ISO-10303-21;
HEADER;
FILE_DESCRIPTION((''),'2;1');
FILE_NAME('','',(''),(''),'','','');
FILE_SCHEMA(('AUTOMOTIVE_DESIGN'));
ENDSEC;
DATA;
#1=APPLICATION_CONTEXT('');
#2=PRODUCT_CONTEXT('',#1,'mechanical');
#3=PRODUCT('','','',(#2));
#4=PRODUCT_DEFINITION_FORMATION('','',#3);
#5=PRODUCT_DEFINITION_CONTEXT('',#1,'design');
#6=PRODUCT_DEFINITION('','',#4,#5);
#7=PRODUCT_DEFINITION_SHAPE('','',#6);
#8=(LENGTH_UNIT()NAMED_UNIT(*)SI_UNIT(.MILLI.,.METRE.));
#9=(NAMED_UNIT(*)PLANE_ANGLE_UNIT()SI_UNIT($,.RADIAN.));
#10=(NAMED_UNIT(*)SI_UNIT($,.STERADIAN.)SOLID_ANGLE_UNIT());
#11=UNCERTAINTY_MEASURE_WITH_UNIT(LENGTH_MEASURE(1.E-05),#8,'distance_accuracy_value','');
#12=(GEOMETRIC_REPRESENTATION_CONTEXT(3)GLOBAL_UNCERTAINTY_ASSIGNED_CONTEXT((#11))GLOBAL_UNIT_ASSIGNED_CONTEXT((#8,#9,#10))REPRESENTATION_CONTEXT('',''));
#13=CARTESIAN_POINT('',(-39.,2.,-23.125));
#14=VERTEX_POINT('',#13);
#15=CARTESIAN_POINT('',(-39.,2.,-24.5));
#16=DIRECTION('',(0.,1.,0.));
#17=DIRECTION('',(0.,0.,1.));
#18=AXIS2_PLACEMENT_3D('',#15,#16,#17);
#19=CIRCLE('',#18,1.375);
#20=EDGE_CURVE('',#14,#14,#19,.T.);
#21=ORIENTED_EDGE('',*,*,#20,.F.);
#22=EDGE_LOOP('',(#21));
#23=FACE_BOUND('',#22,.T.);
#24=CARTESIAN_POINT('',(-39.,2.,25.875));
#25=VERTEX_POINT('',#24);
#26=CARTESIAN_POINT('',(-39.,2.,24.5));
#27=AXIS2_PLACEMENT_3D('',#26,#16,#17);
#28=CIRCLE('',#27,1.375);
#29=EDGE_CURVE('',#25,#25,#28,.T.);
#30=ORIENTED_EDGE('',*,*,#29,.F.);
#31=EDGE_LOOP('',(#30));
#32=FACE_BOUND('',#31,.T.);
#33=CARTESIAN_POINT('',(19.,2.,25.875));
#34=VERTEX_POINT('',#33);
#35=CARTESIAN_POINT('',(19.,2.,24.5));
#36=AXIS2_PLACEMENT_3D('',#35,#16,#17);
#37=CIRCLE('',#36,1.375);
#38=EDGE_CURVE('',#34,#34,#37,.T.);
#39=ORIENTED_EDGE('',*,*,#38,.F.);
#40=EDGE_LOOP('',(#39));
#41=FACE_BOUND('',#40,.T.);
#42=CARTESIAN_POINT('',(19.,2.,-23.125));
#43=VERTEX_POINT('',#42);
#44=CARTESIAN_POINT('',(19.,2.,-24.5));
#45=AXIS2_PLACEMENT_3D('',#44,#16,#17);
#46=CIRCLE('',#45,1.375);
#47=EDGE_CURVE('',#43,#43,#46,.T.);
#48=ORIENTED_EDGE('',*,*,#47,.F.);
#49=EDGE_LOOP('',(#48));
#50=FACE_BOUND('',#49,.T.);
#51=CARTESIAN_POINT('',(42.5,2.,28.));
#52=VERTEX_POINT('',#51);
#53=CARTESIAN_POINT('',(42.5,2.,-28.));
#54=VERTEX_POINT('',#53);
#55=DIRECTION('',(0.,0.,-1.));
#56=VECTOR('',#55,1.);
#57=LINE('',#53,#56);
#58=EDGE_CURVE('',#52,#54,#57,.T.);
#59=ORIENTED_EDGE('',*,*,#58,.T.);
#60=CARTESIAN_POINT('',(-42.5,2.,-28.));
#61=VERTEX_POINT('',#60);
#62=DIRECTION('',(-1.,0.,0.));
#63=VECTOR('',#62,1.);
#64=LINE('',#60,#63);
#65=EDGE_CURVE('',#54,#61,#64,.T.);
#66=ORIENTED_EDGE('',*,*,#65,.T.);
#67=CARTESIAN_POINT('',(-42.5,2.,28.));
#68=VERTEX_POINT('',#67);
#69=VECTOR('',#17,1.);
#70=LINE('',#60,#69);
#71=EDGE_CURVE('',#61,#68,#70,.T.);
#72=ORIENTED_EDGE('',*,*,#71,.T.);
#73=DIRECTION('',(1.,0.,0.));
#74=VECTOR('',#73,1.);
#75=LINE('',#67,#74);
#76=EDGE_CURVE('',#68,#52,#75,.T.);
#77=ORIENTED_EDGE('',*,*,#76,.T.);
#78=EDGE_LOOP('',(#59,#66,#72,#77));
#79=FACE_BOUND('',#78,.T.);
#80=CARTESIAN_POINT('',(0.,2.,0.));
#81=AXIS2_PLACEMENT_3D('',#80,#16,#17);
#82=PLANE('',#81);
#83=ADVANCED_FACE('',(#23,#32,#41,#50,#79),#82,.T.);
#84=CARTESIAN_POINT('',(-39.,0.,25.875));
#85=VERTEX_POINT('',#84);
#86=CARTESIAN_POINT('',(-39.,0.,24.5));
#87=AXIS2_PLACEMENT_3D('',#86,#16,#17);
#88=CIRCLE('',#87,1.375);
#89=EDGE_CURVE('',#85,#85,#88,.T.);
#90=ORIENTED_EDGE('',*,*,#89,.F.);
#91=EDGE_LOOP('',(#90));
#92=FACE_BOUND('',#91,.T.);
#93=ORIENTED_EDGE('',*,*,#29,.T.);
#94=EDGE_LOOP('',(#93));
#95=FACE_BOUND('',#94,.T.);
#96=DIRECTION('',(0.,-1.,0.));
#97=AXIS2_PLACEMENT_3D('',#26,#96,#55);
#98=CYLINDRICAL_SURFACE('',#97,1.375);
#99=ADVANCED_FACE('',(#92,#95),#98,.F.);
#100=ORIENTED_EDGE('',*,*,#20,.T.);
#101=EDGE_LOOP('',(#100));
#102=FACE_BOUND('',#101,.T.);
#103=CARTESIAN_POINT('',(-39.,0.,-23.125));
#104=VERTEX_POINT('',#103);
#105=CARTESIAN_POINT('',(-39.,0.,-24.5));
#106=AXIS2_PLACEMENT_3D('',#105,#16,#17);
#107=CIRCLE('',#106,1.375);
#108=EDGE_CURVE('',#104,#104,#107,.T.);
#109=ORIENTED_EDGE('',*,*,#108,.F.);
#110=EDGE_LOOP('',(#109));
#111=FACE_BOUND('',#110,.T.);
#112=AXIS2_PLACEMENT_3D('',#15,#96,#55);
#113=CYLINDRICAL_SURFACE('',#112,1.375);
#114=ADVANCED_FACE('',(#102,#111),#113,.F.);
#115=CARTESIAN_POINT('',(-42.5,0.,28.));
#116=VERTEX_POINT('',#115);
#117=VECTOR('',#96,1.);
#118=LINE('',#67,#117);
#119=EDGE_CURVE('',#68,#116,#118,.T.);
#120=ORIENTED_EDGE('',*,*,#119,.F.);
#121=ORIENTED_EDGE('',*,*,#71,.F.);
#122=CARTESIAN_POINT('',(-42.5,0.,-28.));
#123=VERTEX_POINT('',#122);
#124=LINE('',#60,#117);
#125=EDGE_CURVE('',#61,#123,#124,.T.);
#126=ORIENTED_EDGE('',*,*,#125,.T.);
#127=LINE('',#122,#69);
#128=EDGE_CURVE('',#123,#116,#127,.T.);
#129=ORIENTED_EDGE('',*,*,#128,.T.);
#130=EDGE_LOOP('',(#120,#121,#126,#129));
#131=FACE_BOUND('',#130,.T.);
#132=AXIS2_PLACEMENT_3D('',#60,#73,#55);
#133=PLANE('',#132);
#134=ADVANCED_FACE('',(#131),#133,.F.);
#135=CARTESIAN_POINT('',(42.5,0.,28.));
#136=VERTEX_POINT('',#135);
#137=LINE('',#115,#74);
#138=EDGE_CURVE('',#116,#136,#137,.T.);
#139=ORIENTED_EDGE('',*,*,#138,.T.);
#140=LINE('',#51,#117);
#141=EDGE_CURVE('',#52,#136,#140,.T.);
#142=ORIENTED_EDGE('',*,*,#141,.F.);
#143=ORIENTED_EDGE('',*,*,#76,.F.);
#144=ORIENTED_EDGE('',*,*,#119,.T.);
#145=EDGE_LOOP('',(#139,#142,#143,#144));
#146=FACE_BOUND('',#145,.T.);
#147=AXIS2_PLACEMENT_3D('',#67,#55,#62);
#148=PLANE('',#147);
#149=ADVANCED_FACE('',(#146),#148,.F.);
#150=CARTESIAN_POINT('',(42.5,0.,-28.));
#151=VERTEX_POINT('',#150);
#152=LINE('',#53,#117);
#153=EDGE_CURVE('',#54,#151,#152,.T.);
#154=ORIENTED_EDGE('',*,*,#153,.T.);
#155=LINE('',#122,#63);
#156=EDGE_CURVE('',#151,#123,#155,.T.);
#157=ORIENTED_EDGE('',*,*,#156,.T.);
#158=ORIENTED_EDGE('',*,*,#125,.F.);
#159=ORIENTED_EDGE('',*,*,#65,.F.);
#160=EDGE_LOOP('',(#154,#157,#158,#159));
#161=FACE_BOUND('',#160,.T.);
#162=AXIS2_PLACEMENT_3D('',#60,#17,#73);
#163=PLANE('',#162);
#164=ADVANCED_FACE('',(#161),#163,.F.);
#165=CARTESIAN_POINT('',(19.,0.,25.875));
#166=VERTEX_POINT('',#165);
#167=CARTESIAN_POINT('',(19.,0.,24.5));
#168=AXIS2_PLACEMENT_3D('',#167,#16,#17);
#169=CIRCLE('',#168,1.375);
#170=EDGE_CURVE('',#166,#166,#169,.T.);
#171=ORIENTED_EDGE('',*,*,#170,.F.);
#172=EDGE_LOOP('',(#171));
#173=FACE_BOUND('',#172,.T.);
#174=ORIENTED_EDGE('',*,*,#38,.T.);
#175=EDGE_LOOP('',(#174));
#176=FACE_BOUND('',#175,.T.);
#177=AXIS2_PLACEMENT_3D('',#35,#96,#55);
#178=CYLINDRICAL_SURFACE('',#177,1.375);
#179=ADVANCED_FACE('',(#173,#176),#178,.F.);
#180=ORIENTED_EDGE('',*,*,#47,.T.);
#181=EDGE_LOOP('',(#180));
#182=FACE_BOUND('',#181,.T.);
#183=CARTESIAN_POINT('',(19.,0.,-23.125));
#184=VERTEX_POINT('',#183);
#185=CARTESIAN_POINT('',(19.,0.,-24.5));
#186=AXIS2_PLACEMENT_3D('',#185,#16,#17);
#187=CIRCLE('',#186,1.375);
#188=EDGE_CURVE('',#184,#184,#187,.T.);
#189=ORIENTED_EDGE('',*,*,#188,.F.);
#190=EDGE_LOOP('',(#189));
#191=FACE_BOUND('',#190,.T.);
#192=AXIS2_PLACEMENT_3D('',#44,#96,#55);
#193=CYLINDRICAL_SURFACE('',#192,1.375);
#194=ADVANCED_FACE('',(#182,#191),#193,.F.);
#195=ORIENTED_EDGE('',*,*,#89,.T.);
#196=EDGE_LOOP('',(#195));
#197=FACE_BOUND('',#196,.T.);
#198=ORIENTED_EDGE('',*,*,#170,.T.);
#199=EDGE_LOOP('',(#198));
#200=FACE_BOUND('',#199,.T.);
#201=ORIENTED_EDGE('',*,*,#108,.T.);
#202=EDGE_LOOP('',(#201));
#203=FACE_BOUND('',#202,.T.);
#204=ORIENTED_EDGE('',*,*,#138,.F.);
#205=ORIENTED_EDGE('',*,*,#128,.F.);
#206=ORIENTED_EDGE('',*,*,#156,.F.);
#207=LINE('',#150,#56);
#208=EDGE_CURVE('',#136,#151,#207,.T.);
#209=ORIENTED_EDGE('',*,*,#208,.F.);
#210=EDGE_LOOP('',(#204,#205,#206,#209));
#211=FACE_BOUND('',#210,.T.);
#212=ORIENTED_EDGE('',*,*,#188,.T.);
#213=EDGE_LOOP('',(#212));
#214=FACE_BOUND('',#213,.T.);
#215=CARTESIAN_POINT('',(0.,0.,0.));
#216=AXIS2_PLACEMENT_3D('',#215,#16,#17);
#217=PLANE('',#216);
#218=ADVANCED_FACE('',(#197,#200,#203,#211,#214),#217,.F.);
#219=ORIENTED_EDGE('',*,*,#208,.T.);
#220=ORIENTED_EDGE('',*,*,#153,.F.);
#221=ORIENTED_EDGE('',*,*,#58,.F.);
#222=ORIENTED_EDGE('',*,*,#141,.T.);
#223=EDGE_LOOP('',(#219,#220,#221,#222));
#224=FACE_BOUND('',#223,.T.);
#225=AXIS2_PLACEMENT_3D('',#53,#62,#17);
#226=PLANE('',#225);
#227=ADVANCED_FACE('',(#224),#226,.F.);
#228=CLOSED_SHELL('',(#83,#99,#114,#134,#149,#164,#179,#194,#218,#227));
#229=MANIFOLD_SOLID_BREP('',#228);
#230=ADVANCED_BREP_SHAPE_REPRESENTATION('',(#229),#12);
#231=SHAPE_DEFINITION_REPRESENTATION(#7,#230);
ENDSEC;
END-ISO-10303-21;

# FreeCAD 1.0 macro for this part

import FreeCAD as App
import Part
import Sketcher
Q = App.Units.Quantity

doc = App.newDocument("Part")
body = doc.addObject("PartDesign::Body", "Body")

# Sketch on XZ plane
sketch1 = body.newObject("Sketcher::SketchObject", "Sketch")
sketch1.AttachmentSupport = (doc.getObject("XZ_Plane"), [""])
sketch1.MapMode = "FlatFace"
sketch1.addGeometry([
    Part.LineSegment(App.Vector(-42.5, -28, 0), App.Vector(-42.5, 28, 0)),  # 0
    Part.LineSegment(App.Vector(-42.5, 28, 0), App.Vector(42.5, 28, 0)),  # 1
    Part.LineSegment(App.Vector(42.5, 28, 0), App.Vector(42.5, -28, 0)),  # 2
    Part.LineSegment(App.Vector(42.5, -28, 0), App.Vector(-42.5, -28, 0)),  # 3
    Part.Circle(App.Vector(-39, 24.5, 0), App.Vector(0, 0, 1), 1.375),  # 4
    Part.Circle(App.Vector(19, 24.5, 0), App.Vector(0, 0, 1), 1.375),  # 5
    Part.Circle(App.Vector(-39, -24.5, 0), App.Vector(0, 0, 1), 1.375),  # 6
    Part.Circle(App.Vector(19, -24.5, 0), App.Vector(0, 0, 1), 1.375),  # 7
], False)
sketch1.addConstraint([
    Sketcher.Constraint("Coincident", 0, 2, 1, 1),
    Sketcher.Constraint("Coincident", 1, 2, 2, 1),
    Sketcher.Constraint("Coincident", 2, 2, 3, 1),
    Sketcher.Constraint("Coincident", 3, 2, 0, 1),
    Sketcher.Constraint("Vertical", 0),
    Sketcher.Constraint("Horizontal", 1),
    Sketcher.Constraint("Vertical", 2),
    Sketcher.Constraint("Horizontal", 3),
    Sketcher.Constraint("Equal", 4, 5),
    Sketcher.Constraint("Equal", 5, 6),
    Sketcher.Constraint("Equal", 6, 7),
    Sketcher.Constraint("Symmetric", 0, 2, 2, 2, -1, 1),
    Sketcher.Constraint("Symmetric", 4, 3, 6, 3, -1),
    Sketcher.Constraint("Symmetric", 5, 3, 7, 3, -1),
    Sketcher.Constraint("Horizontal", 4, 3, 5, 3),
    Sketcher.Constraint("Diameter", 4, Q("2.75 mm")),
    Sketcher.Constraint("DistanceX", 1, 1, 1, 2, Q("85 mm")),
    Sketcher.Constraint("DistanceY", 0, 1, 0, 2, Q("56 mm")),
    Sketcher.Constraint("DistanceX", 4, 3, -1, 1, Q("39 mm")),
    Sketcher.Constraint("DistanceX", -1, 1, 5, 3, Q("19 mm")),
    Sketcher.Constraint("DistanceY", 6, 3, 4, 3, Q("49 mm")),
])
pad1 = body.newObject("PartDesign::Pad", "Pad")
pad1.Profile = sketch1
pad1.Length = 2
pad1.Reversed = True

doc.recompute()
